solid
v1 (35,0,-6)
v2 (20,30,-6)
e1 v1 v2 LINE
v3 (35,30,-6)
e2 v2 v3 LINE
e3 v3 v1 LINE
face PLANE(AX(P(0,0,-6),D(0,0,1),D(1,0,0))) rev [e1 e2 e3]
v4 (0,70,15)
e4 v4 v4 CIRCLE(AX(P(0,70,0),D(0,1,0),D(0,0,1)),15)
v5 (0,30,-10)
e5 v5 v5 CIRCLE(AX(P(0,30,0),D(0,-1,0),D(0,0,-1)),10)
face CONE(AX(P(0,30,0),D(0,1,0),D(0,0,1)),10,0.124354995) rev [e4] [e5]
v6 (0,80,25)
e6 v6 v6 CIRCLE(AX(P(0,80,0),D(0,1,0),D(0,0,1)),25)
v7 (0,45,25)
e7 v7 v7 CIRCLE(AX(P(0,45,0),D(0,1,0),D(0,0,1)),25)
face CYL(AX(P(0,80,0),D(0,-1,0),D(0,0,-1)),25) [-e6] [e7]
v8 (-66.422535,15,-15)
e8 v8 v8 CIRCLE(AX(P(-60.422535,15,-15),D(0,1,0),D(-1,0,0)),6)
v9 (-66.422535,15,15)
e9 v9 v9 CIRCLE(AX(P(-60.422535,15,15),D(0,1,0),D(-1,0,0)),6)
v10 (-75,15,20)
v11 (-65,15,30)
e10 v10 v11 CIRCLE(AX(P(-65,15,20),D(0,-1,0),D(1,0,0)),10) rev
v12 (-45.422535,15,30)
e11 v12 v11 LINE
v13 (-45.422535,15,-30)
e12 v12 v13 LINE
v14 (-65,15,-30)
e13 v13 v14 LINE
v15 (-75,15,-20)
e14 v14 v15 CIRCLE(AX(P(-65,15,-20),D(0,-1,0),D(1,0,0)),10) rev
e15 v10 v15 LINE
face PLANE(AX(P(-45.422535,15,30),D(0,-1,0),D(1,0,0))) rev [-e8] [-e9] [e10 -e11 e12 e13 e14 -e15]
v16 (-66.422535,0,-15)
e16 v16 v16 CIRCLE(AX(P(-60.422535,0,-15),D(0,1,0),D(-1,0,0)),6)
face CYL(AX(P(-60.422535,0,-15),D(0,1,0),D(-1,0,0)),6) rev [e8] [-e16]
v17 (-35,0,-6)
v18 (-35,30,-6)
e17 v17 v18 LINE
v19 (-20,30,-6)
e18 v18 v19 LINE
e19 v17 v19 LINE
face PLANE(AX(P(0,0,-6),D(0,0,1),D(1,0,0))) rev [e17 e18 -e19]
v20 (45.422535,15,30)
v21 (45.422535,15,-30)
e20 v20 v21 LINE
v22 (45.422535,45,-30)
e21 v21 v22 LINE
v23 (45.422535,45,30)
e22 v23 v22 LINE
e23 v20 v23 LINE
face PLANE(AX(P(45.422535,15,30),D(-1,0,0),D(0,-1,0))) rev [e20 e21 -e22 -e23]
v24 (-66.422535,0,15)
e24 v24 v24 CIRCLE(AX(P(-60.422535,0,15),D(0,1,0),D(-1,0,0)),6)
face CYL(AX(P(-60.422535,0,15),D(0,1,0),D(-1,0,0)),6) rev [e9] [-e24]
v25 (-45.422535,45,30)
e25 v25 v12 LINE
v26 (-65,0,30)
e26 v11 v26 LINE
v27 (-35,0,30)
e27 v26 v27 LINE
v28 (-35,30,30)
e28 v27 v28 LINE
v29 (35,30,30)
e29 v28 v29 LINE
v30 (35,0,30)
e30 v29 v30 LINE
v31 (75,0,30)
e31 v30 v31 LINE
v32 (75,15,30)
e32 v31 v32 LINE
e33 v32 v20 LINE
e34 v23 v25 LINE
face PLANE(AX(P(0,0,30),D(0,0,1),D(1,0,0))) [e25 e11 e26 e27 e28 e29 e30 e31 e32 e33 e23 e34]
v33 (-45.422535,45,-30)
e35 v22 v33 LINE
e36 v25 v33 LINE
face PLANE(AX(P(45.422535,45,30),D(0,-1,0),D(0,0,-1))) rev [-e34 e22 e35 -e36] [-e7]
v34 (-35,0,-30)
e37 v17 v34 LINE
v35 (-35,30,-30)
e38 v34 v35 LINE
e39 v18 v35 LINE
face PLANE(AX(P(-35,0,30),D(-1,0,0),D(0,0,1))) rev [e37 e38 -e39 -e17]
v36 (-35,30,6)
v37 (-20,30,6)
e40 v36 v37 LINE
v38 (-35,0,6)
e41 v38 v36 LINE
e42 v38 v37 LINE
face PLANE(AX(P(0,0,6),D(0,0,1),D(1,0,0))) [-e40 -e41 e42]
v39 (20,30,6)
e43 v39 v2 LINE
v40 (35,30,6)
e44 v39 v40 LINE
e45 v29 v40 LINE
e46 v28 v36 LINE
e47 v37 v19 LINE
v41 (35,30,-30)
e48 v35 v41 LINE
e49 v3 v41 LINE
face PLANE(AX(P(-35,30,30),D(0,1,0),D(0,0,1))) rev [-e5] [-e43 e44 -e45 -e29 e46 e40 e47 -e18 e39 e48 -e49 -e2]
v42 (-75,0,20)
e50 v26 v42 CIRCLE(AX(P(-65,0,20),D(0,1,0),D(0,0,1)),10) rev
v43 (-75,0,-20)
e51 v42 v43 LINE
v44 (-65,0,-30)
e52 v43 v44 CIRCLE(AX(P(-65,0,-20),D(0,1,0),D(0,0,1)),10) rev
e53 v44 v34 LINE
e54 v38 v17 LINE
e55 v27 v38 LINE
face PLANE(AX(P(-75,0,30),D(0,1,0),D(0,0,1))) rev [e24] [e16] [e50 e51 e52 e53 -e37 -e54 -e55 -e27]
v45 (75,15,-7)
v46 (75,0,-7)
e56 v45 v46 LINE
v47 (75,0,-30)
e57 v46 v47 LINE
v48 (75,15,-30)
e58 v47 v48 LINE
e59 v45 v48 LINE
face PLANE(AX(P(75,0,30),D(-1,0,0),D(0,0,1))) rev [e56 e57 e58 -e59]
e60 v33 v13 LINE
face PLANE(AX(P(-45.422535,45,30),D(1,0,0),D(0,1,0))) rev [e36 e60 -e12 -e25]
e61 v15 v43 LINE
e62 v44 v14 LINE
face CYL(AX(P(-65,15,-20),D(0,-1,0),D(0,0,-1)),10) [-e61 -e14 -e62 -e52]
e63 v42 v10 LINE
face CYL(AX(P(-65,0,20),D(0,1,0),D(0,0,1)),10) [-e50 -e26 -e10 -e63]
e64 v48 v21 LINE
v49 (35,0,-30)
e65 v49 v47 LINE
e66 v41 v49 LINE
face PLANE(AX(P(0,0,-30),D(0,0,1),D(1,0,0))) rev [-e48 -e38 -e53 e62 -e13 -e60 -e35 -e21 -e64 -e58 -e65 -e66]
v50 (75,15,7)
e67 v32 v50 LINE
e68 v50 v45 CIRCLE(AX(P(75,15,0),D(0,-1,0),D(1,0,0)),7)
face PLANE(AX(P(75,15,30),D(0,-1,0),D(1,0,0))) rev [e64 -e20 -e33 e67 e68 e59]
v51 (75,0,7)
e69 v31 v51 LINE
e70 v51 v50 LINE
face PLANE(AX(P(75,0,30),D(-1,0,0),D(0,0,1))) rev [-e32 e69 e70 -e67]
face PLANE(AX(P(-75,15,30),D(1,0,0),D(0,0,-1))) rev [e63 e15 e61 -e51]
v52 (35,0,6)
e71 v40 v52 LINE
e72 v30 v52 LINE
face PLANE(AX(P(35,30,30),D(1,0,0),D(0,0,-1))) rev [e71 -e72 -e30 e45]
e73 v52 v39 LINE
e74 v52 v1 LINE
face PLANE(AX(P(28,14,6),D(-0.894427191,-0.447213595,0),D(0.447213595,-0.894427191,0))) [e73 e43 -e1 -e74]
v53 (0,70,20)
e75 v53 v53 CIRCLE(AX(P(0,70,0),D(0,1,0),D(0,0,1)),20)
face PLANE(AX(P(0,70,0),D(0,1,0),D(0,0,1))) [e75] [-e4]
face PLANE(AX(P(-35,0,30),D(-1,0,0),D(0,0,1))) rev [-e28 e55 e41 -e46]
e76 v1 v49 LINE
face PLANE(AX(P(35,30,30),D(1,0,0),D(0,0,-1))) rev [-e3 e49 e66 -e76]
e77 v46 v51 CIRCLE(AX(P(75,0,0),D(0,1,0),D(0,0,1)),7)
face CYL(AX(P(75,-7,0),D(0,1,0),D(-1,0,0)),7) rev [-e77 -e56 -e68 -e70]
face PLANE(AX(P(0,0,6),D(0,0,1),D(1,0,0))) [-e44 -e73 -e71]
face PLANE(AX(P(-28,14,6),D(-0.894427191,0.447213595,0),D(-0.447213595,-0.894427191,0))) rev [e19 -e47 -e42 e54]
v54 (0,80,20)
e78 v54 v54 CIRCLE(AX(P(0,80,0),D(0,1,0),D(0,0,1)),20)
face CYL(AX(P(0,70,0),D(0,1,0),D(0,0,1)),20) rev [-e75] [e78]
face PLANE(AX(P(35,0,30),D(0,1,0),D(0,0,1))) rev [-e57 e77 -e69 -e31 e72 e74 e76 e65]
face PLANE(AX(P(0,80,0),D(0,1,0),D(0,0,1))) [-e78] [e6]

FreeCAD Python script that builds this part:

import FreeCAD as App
import Part
import Sketcher
from FreeCAD import Vector
Q = App.Units.Quantity


def edges_at(feature, points):
    """Names of the edges that pass closest to the given points."""
    edges = feature.Shape.Edges
    near = lambda p: min(range(len(edges)), key=lambda i: edges[i].distToShape(Part.Vertex(*p))[0])
    return sorted({f"Edge{near(p) + 1}" for p in points})


def add_polygon(sketch, points):
    """Adds a closed chain of lines whose ends are joined by coincident constraints."""
    first, n = sketch.GeometryCount, len(points)
    for a, b in zip(points, points[1:] + points[:1]):
        sketch.addGeometry(Part.LineSegment(App.Vector(*a, 0), App.Vector(*b, 0)), False)
    for i in range(n):
        sketch.addConstraint(Sketcher.Constraint("Coincident", first + i, 2, first + (i + 1) % n, 1))

doc = App.newDocument("Part")
params = doc.addObject("Spreadsheet::Sheet", "Params")
for row, (alias, value) in enumerate([
    ("sketch1_width", "40 mm"),
    ("sketch1_width2", "70 mm"),
    ("sketch1_height", "30 mm"),
    ("sketch1_height2", "15 mm"),
    ("pad1_length", "60 mm"),
    ("sketch2_width", "15 mm"),
    ("sketch2_height", "30 mm"),
    ("pad2_length", "12 mm"),
    ("sketch3_diameter", "12 mm"),
    ("fillet_radius", "10 mm"),
    ("sketch4_diameter", "14 mm"),
    ("pocket2_length", "22 mm"),
    ("sketch5_diameter", "50 mm"),
    ("pad3_length", "35 mm"),
    ("sketch6_diameter", "40 mm"),
    ("pocket3_length", "10 mm"),
    ("sketch7_diameter", "30 mm"),
    ("sketch8_diameter", "20 mm"),
], start=1):
    params.set(f"A{row}", alias)
    params.set(f"B{row}", "=" + value)
    params.setAlias(f"B{row}", alias)

body = doc.addObject("PartDesign::Body", "Body")

sketch1 = body.newObject("Sketcher::SketchObject", "Sketch")
sketch1.AttachmentSupport = (doc.getObject("XY_Plane"), [""])
sketch1.MapMode = "FlatFace"
add_polygon(sketch1, [(-75, 0), (-35, 0), (-35, 30), (35, 30), (35, 0), (75, 0), (75, 15), (45, 15), (45, 45), (-45, 45), (-45, 15), (-75, 15)])
sketch1.addConstraint(Sketcher.Constraint("Horizontal", 0))
sketch1.addConstraint(Sketcher.Constraint("Vertical", 1))
sketch1.addConstraint(Sketcher.Constraint("Horizontal", 2))
sketch1.addConstraint(Sketcher.Constraint("Vertical", 3))
sketch1.addConstraint(Sketcher.Constraint("Horizontal", 4))
sketch1.addConstraint(Sketcher.Constraint("Vertical", 5))
sketch1.addConstraint(Sketcher.Constraint("Horizontal", 6))
sketch1.addConstraint(Sketcher.Constraint("Vertical", 7))
sketch1.addConstraint(Sketcher.Constraint("Horizontal", 8))
sketch1.addConstraint(Sketcher.Constraint("Vertical", 9))
sketch1.addConstraint(Sketcher.Constraint("Horizontal", 10))
sketch1.addConstraint(Sketcher.Constraint("Vertical", 11))
sketch1.addConstraint(Sketcher.Constraint("Symmetric", 0, 2, 3, 2, -1, 1))
sketch1.addConstraint(Sketcher.Constraint("Symmetric", 6, 2, 9, 2, -2))
sketch1.addConstraint(Sketcher.Constraint("Symmetric", 4, 2, 11, 2, -2))
sketch1.addConstraint(Sketcher.Constraint("Equal", 3, 7))
sketch1.addConstraint(Sketcher.Constraint("DistanceX", 0, 1, 0, 2, Q("40 mm")))
sketch1.addConstraint(Sketcher.Constraint("DistanceX", 2, 1, 2, 2, Q("70 mm")))
sketch1.addConstraint(Sketcher.Constraint("DistanceY", 1, 1, 1, 2, Q("30 mm")))
sketch1.addConstraint(Sketcher.Constraint("DistanceY", 5, 1, 5, 2, Q("15 mm")))
sketch1.addConstraint(Sketcher.Constraint("DistanceX", 8, 2, 8, 1, Q("90.84507 mm")))
sketch1.setExpression("Constraints[28]", "Params.sketch1_width")
sketch1.setExpression("Constraints[29]", "Params.sketch1_width2")
sketch1.setExpression("Constraints[30]", "Params.sketch1_height")
sketch1.setExpression("Constraints[31]", "Params.sketch1_height2")
pad1 = body.newObject("PartDesign::Pad", "Pad")
pad1.Profile = sketch1
pad1.setExpression("Length", "Params.pad1_length")
pad1.Midplane = True

sketch2 = body.newObject("Sketcher::SketchObject", "Sketch001")
sketch2.AttachmentSupport = (doc.getObject("XY_Plane"), [""])
sketch2.MapMode = "FlatFace"
add_polygon(sketch2, [(-35, 30), (-35, 0), (-20, 30)])
add_polygon(sketch2, [(35, 30), (20, 30), (35, 0)])
sketch2.addConstraint(Sketcher.Constraint("Vertical", 0))
sketch2.addConstraint(Sketcher.Constraint("Horizontal", 2))
sketch2.addConstraint(Sketcher.Constraint("Horizontal", 3))
sketch2.addConstraint(Sketcher.Constraint("Vertical", 5))
sketch2.addConstraint(Sketcher.Constraint("Symmetric", 0, 2, 4, 2, -1, 1))
sketch2.addConstraint(Sketcher.Constraint("Symmetric", 1, 2, 3, 2, -2))
sketch2.addConstraint(Sketcher.Constraint("PointOnObject", 0, 2, -1))
sketch2.addConstraint(Sketcher.Constraint("DistanceX", 2, 2, 2, 1, Q("15 mm")))
sketch2.addConstraint(Sketcher.Constraint("DistanceY", 0, 2, 0, 1, Q("30 mm")))
sketch2.addConstraint(Sketcher.Constraint("DistanceX", 0, 2, -1, 1, Q("35 mm")))
sketch2.setExpression("Constraints[13]", "Params.sketch2_width")
sketch2.setExpression("Constraints[14]", "Params.sketch2_height")
pad2 = body.newObject("PartDesign::Pad", "Pad001")
pad2.Profile = sketch2
pad2.setExpression("Length", "Params.pad2_length")
pad2.Midplane = True

sketch3 = body.newObject("Sketcher::SketchObject", "Sketch002")
sketch3.AttachmentSupport = (doc.getObject("XZ_Plane"), [""])
sketch3.MapMode = "FlatFace"
sketch3.AttachmentOffset = App.Placement(Vector(0, 0, -15), App.Rotation())
sketch3.addGeometry(Part.Circle(Vector(-60, 15, 0), Vector(0, 0, 1), 6), False)
sketch3.addGeometry(Part.Circle(Vector(-60, -15, 0), Vector(0, 0, 1), 6), False)
sketch3.addConstraint(Sketcher.Constraint("Equal", 0, 1))
sketch3.addConstraint(Sketcher.Constraint("Symmetric", 0, 3, 1, 3, -1))
sketch3.addConstraint(Sketcher.Constraint("Diameter", 0, Q("12 mm")))
sketch3.addConstraint(Sketcher.Constraint("DistanceY", -1, 1, 0, 3, Q("15 mm")))
sketch3.addConstraint(Sketcher.Constraint("DistanceX", 0, 3, -1, 1, Q("60.422535 mm")))
sketch3.setExpression("Constraints[2]", "Params.sketch3_diameter")
pocket1 = body.newObject("PartDesign::Pocket", "Pocket")
pocket1.Profile = sketch3
pocket1.Type = "ThroughAll"
pocket1.Reversed = True
doc.recompute()

fillet = body.newObject("PartDesign::Fillet", "Fillet")
fillet.Base = (pocket1, edges_at(pocket1, [(-75, 7.5, -30), (-75, 7.5, 30)]))
fillet.setExpression("Radius", "Params.fillet_radius")

sketch4 = body.newObject("Sketcher::SketchObject", "Sketch003")
sketch4.AttachmentSupport = (doc.getObject("XZ_Plane"), [""])
sketch4.MapMode = "FlatFace"
sketch4.AttachmentOffset = App.Placement(Vector(0, 0, -15), App.Rotation())
sketch4.addGeometry(Part.Circle(Vector(75, 0, 0), Vector(0, 0, 1), 7), False)
sketch4.addConstraint(Sketcher.Constraint("PointOnObject", 0, 3, -1))
sketch4.addConstraint(Sketcher.Constraint("Diameter", 0, Q("14 mm")))
sketch4.addConstraint(Sketcher.Constraint("DistanceX", -1, 1, 0, 3, Q("75 mm")))
sketch4.setExpression("Constraints[1]", "Params.sketch4_diameter")
pocket2 = body.newObject("PartDesign::Pocket", "Pocket001")
pocket2.Profile = sketch4
pocket2.setExpression("Length", "Params.pocket2_length")
pocket2.Reversed = True

sketch5 = body.newObject("Sketcher::SketchObject", "Sketch004")
sketch5.AttachmentSupport = (doc.getObject("XZ_Plane"), [""])
sketch5.MapMode = "FlatFace"
sketch5.AttachmentOffset = App.Placement(Vector(0, 0, -45), App.Rotation())
sketch5.addGeometry(Part.Circle(Vector(0, 0, 0), Vector(0, 0, 1), 25), False)
sketch5.addConstraint(Sketcher.Constraint("Coincident", 0, 3, -1, 1))
sketch5.addConstraint(Sketcher.Constraint("Diameter", 0, Q("50 mm")))
sketch5.setExpression("Constraints[1]", "Params.sketch5_diameter")
pad3 = body.newObject("PartDesign::Pad", "Pad002")
pad3.Profile = sketch5
pad3.setExpression("Length", "Params.pad3_length")
pad3.Reversed = True

sketch6 = body.newObject("Sketcher::SketchObject", "Sketch005")
sketch6.AttachmentSupport = (doc.getObject("XZ_Plane"), [""])
sketch6.MapMode = "FlatFace"
sketch6.AttachmentOffset = App.Placement(Vector(0, 0, -80), App.Rotation())
sketch6.addGeometry(Part.Circle(Vector(0, 0, 0), Vector(0, 0, 1), 20), False)
sketch6.addConstraint(Sketcher.Constraint("Coincident", 0, 3, -1, 1))
sketch6.addConstraint(Sketcher.Constraint("Diameter", 0, Q("40 mm")))
sketch6.setExpression("Constraints[1]", "Params.sketch6_diameter")
pocket3 = body.newObject("PartDesign::Pocket", "Pocket002")
pocket3.Profile = sketch6
pocket3.setExpression("Length", "Params.pocket3_length")
pocket3.Reversed = True

sketch7 = body.newObject("Sketcher::SketchObject", "Sketch006")
sketch7.AttachmentSupport = (doc.getObject("XZ_Plane"), [""])
sketch7.MapMode = "FlatFace"
sketch7.AttachmentOffset = App.Placement(Vector(0, 0, -70), App.Rotation())
sketch7.addGeometry(Part.Circle(Vector(0, 0, 0), Vector(0, 0, 1), 15), False)
sketch7.addConstraint(Sketcher.Constraint("Coincident", 0, 3, -1, 1))
sketch7.addConstraint(Sketcher.Constraint("Diameter", 0, Q("30 mm")))
sketch7.setExpression("Constraints[1]", "Params.sketch7_diameter")

sketch8 = body.newObject("Sketcher::SketchObject", "Sketch007")
sketch8.AttachmentSupport = (doc.getObject("XZ_Plane"), [""])
sketch8.MapMode = "FlatFace"
sketch8.AttachmentOffset = App.Placement(Vector(0, 0, -30), App.Rotation())
sketch8.addGeometry(Part.Circle(Vector(0, 0, 0), Vector(0, 0, 1), 10), False)
sketch8.addConstraint(Sketcher.Constraint("Coincident", 0, 3, -1, 1))
sketch8.addConstraint(Sketcher.Constraint("Diameter", 0, Q("20 mm")))
sketch8.setExpression("Constraints[1]", "Params.sketch8_diameter")

subtractiveloft = body.newObject("PartDesign::SubtractiveLoft", "SubtractiveLoft")
subtractiveloft.Profile = sketch7
subtractiveloft.Sections = [sketch8]

doc.recompute()
